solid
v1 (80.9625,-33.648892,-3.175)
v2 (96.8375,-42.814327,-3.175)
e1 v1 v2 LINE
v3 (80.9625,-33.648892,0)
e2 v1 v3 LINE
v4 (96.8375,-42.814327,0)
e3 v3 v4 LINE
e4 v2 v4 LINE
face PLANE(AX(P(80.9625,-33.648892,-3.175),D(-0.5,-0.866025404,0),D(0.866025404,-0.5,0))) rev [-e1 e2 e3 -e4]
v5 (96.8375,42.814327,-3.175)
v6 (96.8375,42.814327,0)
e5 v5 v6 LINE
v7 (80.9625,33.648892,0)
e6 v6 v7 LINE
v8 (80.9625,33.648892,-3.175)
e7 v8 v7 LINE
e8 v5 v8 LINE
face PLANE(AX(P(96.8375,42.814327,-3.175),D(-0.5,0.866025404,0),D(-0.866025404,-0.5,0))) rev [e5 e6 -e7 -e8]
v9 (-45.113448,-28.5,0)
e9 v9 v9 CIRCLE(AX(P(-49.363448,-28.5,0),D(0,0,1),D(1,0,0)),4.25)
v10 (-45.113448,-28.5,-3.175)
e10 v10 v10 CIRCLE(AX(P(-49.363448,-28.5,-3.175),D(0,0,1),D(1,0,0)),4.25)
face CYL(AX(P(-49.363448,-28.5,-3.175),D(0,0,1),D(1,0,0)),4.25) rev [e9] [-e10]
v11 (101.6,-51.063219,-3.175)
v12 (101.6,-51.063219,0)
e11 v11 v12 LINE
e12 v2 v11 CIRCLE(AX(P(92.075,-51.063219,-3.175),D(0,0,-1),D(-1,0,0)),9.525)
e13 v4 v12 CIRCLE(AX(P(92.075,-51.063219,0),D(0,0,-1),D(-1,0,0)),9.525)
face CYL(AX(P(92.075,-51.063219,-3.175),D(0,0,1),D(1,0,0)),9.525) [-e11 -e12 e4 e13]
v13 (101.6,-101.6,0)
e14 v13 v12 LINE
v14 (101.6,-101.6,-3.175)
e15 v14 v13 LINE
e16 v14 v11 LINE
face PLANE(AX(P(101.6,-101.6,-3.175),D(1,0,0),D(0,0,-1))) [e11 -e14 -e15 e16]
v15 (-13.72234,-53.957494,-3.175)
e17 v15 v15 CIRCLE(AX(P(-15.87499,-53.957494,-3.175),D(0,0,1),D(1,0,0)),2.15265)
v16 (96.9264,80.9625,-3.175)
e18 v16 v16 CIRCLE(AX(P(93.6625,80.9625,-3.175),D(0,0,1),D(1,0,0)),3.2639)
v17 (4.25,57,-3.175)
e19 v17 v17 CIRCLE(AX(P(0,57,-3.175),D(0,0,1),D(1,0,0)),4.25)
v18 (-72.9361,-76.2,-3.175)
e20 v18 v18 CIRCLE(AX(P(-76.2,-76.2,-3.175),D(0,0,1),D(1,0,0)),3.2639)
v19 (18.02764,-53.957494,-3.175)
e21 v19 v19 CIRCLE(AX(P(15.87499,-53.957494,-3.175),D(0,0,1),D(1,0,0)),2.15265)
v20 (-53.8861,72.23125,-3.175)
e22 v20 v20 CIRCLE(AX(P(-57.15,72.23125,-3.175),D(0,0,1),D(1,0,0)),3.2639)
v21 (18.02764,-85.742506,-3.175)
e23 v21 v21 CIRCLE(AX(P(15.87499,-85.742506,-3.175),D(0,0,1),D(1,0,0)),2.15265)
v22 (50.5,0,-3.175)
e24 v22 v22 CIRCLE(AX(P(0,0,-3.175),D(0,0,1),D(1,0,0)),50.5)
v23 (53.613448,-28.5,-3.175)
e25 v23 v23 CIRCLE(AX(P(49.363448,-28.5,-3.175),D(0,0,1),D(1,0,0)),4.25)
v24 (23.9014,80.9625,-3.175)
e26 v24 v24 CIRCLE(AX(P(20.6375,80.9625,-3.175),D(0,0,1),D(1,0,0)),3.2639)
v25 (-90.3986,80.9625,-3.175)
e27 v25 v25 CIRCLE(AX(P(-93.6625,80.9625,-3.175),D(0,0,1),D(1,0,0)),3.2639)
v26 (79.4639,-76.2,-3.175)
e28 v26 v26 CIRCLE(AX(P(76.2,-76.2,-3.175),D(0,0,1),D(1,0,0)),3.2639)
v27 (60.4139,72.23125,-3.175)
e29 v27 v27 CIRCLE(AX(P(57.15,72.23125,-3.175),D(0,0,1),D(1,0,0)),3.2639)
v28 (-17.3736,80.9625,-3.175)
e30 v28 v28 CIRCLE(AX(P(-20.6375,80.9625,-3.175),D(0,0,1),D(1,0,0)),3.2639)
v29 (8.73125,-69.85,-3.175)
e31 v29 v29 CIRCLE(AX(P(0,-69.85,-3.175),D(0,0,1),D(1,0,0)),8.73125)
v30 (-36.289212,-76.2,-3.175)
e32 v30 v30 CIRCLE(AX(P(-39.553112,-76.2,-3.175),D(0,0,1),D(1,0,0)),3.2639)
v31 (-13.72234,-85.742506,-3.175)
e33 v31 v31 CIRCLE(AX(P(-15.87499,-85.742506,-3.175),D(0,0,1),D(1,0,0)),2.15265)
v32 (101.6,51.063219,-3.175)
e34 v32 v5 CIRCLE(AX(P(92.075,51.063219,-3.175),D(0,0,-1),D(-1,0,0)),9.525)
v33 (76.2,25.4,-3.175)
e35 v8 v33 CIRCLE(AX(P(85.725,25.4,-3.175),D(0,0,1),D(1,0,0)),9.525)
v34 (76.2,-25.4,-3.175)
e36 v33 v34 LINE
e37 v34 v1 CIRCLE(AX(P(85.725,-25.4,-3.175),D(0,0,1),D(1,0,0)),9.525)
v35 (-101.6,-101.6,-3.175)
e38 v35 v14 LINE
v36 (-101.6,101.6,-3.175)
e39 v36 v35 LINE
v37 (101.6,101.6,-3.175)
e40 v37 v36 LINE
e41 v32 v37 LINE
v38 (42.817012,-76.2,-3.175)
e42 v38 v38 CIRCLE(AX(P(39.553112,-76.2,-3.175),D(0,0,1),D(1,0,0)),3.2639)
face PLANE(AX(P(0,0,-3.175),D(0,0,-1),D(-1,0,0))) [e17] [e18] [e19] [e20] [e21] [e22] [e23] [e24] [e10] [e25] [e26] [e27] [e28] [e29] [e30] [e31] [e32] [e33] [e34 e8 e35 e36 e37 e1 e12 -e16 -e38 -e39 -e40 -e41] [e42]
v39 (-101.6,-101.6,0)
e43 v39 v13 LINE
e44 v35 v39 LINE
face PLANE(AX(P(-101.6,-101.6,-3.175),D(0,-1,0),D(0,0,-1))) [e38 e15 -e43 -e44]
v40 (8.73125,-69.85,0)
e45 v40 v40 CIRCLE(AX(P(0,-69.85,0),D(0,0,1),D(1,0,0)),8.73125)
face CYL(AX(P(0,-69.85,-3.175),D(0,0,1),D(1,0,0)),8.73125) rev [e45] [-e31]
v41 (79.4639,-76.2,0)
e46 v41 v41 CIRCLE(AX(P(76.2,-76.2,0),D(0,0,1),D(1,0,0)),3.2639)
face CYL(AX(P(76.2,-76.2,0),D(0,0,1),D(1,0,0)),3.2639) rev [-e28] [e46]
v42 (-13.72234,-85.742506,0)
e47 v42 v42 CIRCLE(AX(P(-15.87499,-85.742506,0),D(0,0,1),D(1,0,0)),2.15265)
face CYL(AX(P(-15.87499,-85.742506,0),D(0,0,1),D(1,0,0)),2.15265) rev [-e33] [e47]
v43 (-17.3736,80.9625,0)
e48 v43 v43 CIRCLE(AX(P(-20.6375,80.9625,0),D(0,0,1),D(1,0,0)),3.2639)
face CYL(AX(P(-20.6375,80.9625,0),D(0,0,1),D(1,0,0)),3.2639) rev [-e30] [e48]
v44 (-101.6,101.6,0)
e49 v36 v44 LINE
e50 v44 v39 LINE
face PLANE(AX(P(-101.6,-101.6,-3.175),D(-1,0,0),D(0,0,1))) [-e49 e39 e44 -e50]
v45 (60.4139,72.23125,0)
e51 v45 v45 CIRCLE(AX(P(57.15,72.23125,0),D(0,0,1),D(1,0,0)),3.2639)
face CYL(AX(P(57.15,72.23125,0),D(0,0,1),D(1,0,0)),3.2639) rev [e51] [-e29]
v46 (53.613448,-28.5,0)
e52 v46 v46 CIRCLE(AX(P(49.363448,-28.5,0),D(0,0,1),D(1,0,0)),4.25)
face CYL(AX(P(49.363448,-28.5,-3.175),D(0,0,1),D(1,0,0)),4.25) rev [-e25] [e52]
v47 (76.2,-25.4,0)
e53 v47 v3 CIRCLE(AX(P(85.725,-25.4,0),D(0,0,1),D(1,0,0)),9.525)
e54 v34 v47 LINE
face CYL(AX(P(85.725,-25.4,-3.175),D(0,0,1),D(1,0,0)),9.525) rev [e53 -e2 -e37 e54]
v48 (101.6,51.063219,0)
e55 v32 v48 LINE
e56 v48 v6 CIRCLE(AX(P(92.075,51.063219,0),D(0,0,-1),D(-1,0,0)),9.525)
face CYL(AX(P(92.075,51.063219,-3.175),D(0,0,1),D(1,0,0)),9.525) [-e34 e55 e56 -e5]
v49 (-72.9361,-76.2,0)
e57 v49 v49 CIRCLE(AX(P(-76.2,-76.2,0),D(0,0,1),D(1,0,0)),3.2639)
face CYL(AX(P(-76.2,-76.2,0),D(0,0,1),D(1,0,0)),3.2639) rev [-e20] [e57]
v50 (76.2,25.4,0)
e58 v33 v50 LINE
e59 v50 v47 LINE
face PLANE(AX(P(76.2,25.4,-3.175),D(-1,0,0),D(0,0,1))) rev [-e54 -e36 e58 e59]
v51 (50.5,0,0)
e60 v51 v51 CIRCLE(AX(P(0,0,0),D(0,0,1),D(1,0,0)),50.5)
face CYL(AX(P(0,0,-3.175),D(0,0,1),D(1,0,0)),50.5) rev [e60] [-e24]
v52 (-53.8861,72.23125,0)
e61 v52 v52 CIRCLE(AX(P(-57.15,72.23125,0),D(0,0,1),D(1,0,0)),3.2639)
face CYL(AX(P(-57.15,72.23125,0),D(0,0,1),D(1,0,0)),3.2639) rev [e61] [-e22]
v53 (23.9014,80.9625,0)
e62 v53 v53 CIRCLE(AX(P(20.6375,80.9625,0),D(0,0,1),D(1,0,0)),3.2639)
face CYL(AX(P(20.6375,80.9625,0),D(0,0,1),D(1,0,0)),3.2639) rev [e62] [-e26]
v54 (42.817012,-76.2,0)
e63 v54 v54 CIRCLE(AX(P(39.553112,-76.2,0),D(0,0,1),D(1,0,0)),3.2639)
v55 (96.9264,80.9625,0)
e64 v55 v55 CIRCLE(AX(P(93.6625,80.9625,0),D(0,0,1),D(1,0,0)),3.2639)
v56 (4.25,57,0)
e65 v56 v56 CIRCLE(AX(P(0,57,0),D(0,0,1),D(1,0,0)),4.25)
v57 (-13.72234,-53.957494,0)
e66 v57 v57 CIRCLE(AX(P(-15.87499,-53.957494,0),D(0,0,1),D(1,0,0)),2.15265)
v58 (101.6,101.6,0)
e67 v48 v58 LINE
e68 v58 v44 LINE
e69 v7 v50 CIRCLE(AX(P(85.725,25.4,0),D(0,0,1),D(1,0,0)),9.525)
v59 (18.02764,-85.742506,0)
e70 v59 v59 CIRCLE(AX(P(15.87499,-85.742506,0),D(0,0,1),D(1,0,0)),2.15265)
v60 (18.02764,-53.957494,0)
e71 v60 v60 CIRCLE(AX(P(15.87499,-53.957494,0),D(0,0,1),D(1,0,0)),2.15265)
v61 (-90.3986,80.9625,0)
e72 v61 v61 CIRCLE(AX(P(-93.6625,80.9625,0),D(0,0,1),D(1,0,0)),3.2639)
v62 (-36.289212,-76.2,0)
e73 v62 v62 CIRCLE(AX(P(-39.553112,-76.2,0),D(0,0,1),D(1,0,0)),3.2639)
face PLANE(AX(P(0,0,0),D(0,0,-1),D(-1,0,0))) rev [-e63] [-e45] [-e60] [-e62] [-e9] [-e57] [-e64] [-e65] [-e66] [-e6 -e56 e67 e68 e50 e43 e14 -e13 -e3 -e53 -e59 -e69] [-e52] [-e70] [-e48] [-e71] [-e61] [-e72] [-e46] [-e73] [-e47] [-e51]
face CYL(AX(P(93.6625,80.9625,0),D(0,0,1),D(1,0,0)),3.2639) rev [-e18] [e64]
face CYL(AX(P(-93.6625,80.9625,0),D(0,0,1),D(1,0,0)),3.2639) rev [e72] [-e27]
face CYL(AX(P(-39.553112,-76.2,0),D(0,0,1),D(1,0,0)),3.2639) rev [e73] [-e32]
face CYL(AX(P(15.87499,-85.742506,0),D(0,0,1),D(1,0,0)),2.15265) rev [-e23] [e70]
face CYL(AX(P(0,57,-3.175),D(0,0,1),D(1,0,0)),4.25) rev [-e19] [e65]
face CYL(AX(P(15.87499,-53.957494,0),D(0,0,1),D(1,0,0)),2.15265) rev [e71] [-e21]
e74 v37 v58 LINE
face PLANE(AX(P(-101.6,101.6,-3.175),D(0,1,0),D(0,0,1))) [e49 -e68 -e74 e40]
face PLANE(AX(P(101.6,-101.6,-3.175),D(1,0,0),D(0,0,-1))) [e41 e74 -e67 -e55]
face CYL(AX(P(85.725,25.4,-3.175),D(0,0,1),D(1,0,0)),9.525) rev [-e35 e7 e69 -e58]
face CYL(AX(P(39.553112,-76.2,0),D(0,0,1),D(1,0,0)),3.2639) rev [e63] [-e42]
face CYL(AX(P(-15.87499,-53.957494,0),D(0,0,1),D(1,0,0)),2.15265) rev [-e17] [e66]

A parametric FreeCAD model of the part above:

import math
import FreeCAD as App
import Part
import Sketcher
Q = App.Units.Quantity

doc = App.newDocument("Part")
params = doc.addObject("Spreadsheet::Sheet", "Params")
for row, (alias, value) in enumerate([
    ("sketch1_width", "8 in"),
    ("pad1_length", "0.125 in"),
    ("sketch3_height", "2 in"),
    ("sketch3_radius", "0.375 in"),
    ("sketch4_diameter", "0.257 in"),
    ("hole_diameter", "0.257 in"),
    ("sketch5_diameter", "0.257 in"),
    ("hole2_diameter", "0.257 in"),
    ("hole3_diameter", "0.1695 in"),
    ("sketch7_diameter", "0.6875 in"),
], start=1):
    params.set(f"A{row}", alias)
    params.set(f"B{row}", "=" + value)
    params.setAlias(f"B{row}", alias)

body = doc.addObject("PartDesign::Body", "Body")

# Sketch on XY plane
sketch1 = doc.addObject("Sketcher::SketchObject", "Sketch")
body.addObject(sketch1)
sketch1.AttachmentSupport = (doc.XY_Plane, [""])
sketch1.MapMode = "FlatFace"
sketch1.addGeometry([
    Part.LineSegment(App.Vector(-101.6, 101.6, 0), App.Vector(-101.6, -101.6, 0)),
    Part.LineSegment(App.Vector(-101.6, -101.6, 0), App.Vector(101.6, -101.6, 0)),
    Part.LineSegment(App.Vector(101.6, -101.6, 0), App.Vector(101.6, 101.6, 0)),
    Part.LineSegment(App.Vector(101.6, 101.6, 0), App.Vector(-101.6, 101.6, 0)),
], False)
sketch1.addConstraint([
    Sketcher.Constraint("Coincident", 0, 2, 1, 1),
    Sketcher.Constraint("Coincident", 1, 2, 2, 1),
    Sketcher.Constraint("Coincident", 2, 2, 3, 1),
    Sketcher.Constraint("Coincident", 3, 2, 0, 1),
    Sketcher.Constraint("Vertical", 0),
    Sketcher.Constraint("Horizontal", 1),
    Sketcher.Constraint("Vertical", 2),
    Sketcher.Constraint("Horizontal", 3),
    Sketcher.Constraint("Symmetric", 0, 2, 2, 2, -1, 1),
    Sketcher.Constraint("Equal", 3, 0),
    Sketcher.Constraint("DistanceX", 1, 1, 1, 2, Q("8 in")),
])
sketch1.setExpression("Constraints[10]", "Params.sketch1_width")
pad1 = doc.addObject("PartDesign::Pad", "Pad")
body.addObject(pad1)
pad1.Profile = sketch1
pad1.setExpression("Length", "Params.pad1_length")
pad1.Reversed = True

# Sketch on XY plane
sketch2 = doc.addObject("Sketcher::SketchObject", "Sketch001")
body.addObject(sketch2)
sketch2.AttachmentSupport = (doc.XY_Plane, [""])
sketch2.MapMode = "FlatFace"
sketch2.addGeometry([
    Part.Circle(App.Vector(0, 0, 0), App.Vector(0, 0, 1), 50.5),
    Part.Circle(App.Vector(0, 57, 0), App.Vector(0, 0, 1), 4.25),
    Part.Circle(App.Vector(-49.363448, -28.5, 0), App.Vector(0, 0, 1), 4.25),
    Part.Circle(App.Vector(49.363448, -28.5, 0), App.Vector(0, 0, 1), 4.25),
], False)
sketch2.addConstraint([
    Sketcher.Constraint("Coincident", 0, 3, -1, 1),
    Sketcher.Constraint("Equal", 1, 2),
    Sketcher.Constraint("Equal", 2, 3),
    Sketcher.Constraint("Symmetric", 2, 3, 3, 3, -2),
    Sketcher.Constraint("PointOnObject", 1, 3, -2),
    Sketcher.Constraint("Diameter", 0, Q("101 mm")),
    Sketcher.Constraint("Diameter", 1, Q("8.5 mm")),
    Sketcher.Constraint("DistanceY", -1, 1, 1, 3, Q("57 mm")),
    Sketcher.Constraint("DistanceY", 2, 3, -1, 1, Q("28.5 mm")),
    Sketcher.Constraint("DistanceX", 2, 3, -1, 1, Q("49.363448 mm")),
])
pocket1 = doc.addObject("PartDesign::Pocket", "Pocket")
body.addObject(pocket1)
pocket1.Profile = sketch2
pocket1.Type = "ThroughAll"

# Sketch on XY plane
sketch3 = doc.addObject("Sketcher::SketchObject", "Sketch002")
body.addObject(sketch3)
sketch3.AttachmentSupport = (doc.XY_Plane, [""])
sketch3.MapMode = "FlatFace"
sketch3.addGeometry([
    Part.LineSegment(App.Vector(96.8375, 42.814327, 0), App.Vector(80.9625, 33.648892, 0)),  # 0
    Part.ArcOfCircle(Part.Circle(App.Vector(85.725, 25.4, 0), App.Vector(0, 0, 1), 9.525), math.radians(120), math.radians(180)),  # 1
    Part.LineSegment(App.Vector(76.2, 25.4, 0), App.Vector(76.2, -25.4, 0)),  # 2
    Part.ArcOfCircle(Part.Circle(App.Vector(85.725, -25.4, 0), App.Vector(0, 0, 1), 9.525), math.radians(180), math.radians(240)),  # 3
    Part.LineSegment(App.Vector(80.9625, -33.648892, 0), App.Vector(96.8375, -42.814327, 0)),  # 4
    Part.ArcOfCircle(Part.Circle(App.Vector(92.075, -51.063219, 0), App.Vector(0, 0, 1), 9.525), math.radians(0), math.radians(60)),  # 5
    Part.LineSegment(App.Vector(101.6, -51.063219, 0), App.Vector(101.6, 51.063219, 0)),  # 6
    Part.ArcOfCircle(Part.Circle(App.Vector(92.075, 51.063219, 0), App.Vector(0, 0, 1), 9.525), math.radians(-60), math.radians(0)),  # 7
], False)
sketch3.addConstraint([
    Sketcher.Constraint("Tangent", 0, 2, 1, 1),
    Sketcher.Constraint("Tangent", 1, 2, 2, 1),
    Sketcher.Constraint("Tangent", 2, 2, 3, 1),
    Sketcher.Constraint("Tangent", 3, 2, 4, 1),
    Sketcher.Constraint("Tangent", 4, 2, 5, 2),
    Sketcher.Constraint("Tangent", 5, 1, 6, 1),
    Sketcher.Constraint("Tangent", 6, 2, 7, 2),
    Sketcher.Constraint("Tangent", 7, 1, 0, 1),
    Sketcher.Constraint("Vertical", 2),
    Sketcher.Constraint("Vertical", 6),
    Sketcher.Constraint("Equal", 1, 3),
    Sketcher.Constraint("Equal", 3, 5),
    Sketcher.Constraint("Equal", 5, 7),
    Sketcher.Constraint("Symmetric", 0, 2, 3, 2, -1),
    Sketcher.Constraint("DistanceY", 2, 2, 2, 1, Q("2 in")),
    Sketcher.Constraint("DistanceX", -1, 1, 1, 2, Q("3 in")),
    Sketcher.Constraint("DistanceX", -1, 1, 5, 1, Q("4 in")),
    Sketcher.Constraint("Angle", 0, Q("-150 deg")),
    Sketcher.Constraint("Radius", 1, Q("0.375 in")),
])
sketch3.setExpression("Constraints[14]", "Params.sketch3_height")
sketch3.setExpression("Constraints[18]", "Params.sketch3_radius")
pocket2 = doc.addObject("PartDesign::Pocket", "Pocket001")
body.addObject(pocket2)
pocket2.Profile = sketch3
pocket2.Type = "ThroughAll"

# Sketch on XY plane
sketch4 = doc.addObject("Sketcher::SketchObject", "Sketch003")
body.addObject(sketch4)
sketch4.AttachmentSupport = (doc.XY_Plane, [""])
sketch4.MapMode = "FlatFace"
sketch4.addGeometry([
    Part.Circle(App.Vector(76.2, -76.2, 0), App.Vector(0, 0, 1), 3.2639),
    Part.Circle(App.Vector(39.553112, -76.2, 0), App.Vector(0, 0, 1), 3.2639),
    Part.Circle(App.Vector(-39.553112, -76.2, 0), App.Vector(0, 0, 1), 3.2639),
    Part.Circle(App.Vector(-76.2, -76.2, 0), App.Vector(0, 0, 1), 3.2639),
], False)
sketch4.addConstraint([
    Sketcher.Constraint("Equal", 0, 1),
    Sketcher.Constraint("Equal", 1, 2),
    Sketcher.Constraint("Equal", 2, 3),
    Sketcher.Constraint("Symmetric", 1, 3, 2, 3, -2),
    Sketcher.Constraint("Symmetric", 0, 3, 3, 3, -2),
    Sketcher.Constraint("Horizontal", 0, 3, 1, 3),
    Sketcher.Constraint("Diameter", 0, Q("0.257 in")),
    Sketcher.Constraint("DistanceX", -1, 1, 0, 3, Q("3 in")),
    Sketcher.Constraint("DistanceY", 0, 3, -1, 1, Q("3 in")),
    Sketcher.Constraint("DistanceX", -1, 1, 1, 3, Q("39.553112 mm")),
])
sketch4.setExpression("Constraints[6]", "Params.sketch4_diameter")
doc.recompute()
hole = doc.addObject("PartDesign::Hole", "Hole")
body.addObject(hole)
hole.Profile = sketch4
hole.ThreadType = "None"
hole.setExpression("Diameter", "Params.hole_diameter")
hole.DepthType = "ThroughAll"

# Sketch on XY plane
sketch5 = doc.addObject("Sketcher::SketchObject", "Sketch004")
body.addObject(sketch5)
sketch5.AttachmentSupport = (doc.XY_Plane, [""])
sketch5.MapMode = "FlatFace"
sketch5.addGeometry([
    Part.Circle(App.Vector(-93.6625, 80.9625, 0), App.Vector(0, 0, 1), 3.2639),  # 0
    Part.Circle(App.Vector(-57.15, 72.23125, 0), App.Vector(0, 0, 1), 3.2639),  # 1
    Part.Circle(App.Vector(-20.6375, 80.9625, 0), App.Vector(0, 0, 1), 3.2639),  # 2
    Part.Circle(App.Vector(20.6375, 80.9625, 0), App.Vector(0, 0, 1), 3.2639),  # 3
    Part.Circle(App.Vector(57.15, 72.23125, 0), App.Vector(0, 0, 1), 3.2639),  # 4
    Part.Circle(App.Vector(93.6625, 80.9625, 0), App.Vector(0, 0, 1), 3.2639),  # 5
], False)
sketch5.addConstraint([
    Sketcher.Constraint("Equal", 0, 1),
    Sketcher.Constraint("Equal", 1, 2),
    Sketcher.Constraint("Equal", 2, 3),
    Sketcher.Constraint("Equal", 3, 4),
    Sketcher.Constraint("Equal", 4, 5),
    Sketcher.Constraint("Symmetric", 2, 3, 3, 3, -2),
    Sketcher.Constraint("Symmetric", 1, 3, 4, 3, -2),
    Sketcher.Constraint("Symmetric", 0, 3, 5, 3, -2),
    Sketcher.Constraint("Horizontal", 0, 3, 2, 3),
    Sketcher.Constraint("Diameter", 0, Q("0.257 in")),
    Sketcher.Constraint("DistanceX", 0, 3, 3, 3, Q("4.5 in")),
    Sketcher.Constraint("DistanceX", 1, 3, 4, 3, Q("4.5 in")),
    Sketcher.Constraint("DistanceX", 0, 3, -1, 1, Q("3.6875 in")),
    Sketcher.Constraint("DistanceY", -1, 1, 0, 3, Q("3.1875 in")),
    Sketcher.Constraint("DistanceY", -1, 1, 1, 3, Q("2.84375 in")),
])
sketch5.setExpression("Constraints[9]", "Params.sketch5_diameter")
doc.recompute()
hole2 = doc.addObject("PartDesign::Hole", "Hole001")
body.addObject(hole2)
hole2.Profile = sketch5
hole2.ThreadType = "None"
hole2.setExpression("Diameter", "Params.hole2_diameter")
hole2.DepthType = "ThroughAll"

# Sketch on XY plane
sketch6 = doc.addObject("Sketcher::SketchObject", "Sketch005")
body.addObject(sketch6)
sketch6.AttachmentSupport = (doc.XY_Plane, [""])
sketch6.MapMode = "FlatFace"
sketch6.addGeometry([
    Part.Circle(App.Vector(-15.87499, -53.957494, 0), App.Vector(0, 0, 1), 2.15265),
    Part.Circle(App.Vector(15.87499, -53.957494, 0), App.Vector(0, 0, 1), 2.15265),
    Part.Circle(App.Vector(-15.87499, -85.742506, 0), App.Vector(0, 0, 1), 2.15265),
    Part.Circle(App.Vector(15.87499, -85.742506, 0), App.Vector(0, 0, 1), 2.15265),
], False)
sketch6.addConstraint([
    Sketcher.Constraint("Equal", 0, 1),
    Sketcher.Constraint("Equal", 1, 2),
    Sketcher.Constraint("Equal", 2, 3),
    Sketcher.Constraint("Symmetric", 0, 3, 1, 3, -2),
    Sketcher.Constraint("Symmetric", 2, 3, 3, 3, -2),
    Sketcher.Constraint("Vertical", 0, 3, 2, 3),
    Sketcher.Constraint("Diameter", 0, Q("0.1695 in")),
    Sketcher.Constraint("DistanceX", 0, 3, -1, 1, Q("15.87499 mm")),
    Sketcher.Constraint("DistanceY", 0, 3, -1, 1, Q("53.957494 mm")),
    Sketcher.Constraint("DistanceY", 2, 3, -1, 1, Q("85.742506 mm")),
])
doc.recompute()
hole3 = doc.addObject("PartDesign::Hole", "Hole002")
body.addObject(hole3)
hole3.Profile = sketch6
hole3.ThreadType = "None"
hole3.setExpression("Diameter", "Params.hole3_diameter")
hole3.DepthType = "ThroughAll"

# Sketch on XY plane
sketch7 = doc.addObject("Sketcher::SketchObject", "Sketch006")
body.addObject(sketch7)
sketch7.AttachmentSupport = (doc.XY_Plane, [""])
sketch7.MapMode = "FlatFace"
sketch7.addGeometry(Part.Circle(App.Vector(0, -69.85, 0), App.Vector(0, 0, 1), 8.73125), False)
sketch7.addConstraint([
    Sketcher.Constraint("PointOnObject", 0, 3, -2),
    Sketcher.Constraint("Diameter", 0, Q("0.6875 in")),
    Sketcher.Constraint("DistanceY", 0, 3, -1, 1, Q("2.75 in")),
])
sketch7.setExpression("Constraints[1]", "Params.sketch7_diameter")
pocket3 = doc.addObject("PartDesign::Pocket", "Pocket002")
body.addObject(pocket3)
pocket3.Profile = sketch7
pocket3.Type = "ThroughAll"

doc.recompute()
